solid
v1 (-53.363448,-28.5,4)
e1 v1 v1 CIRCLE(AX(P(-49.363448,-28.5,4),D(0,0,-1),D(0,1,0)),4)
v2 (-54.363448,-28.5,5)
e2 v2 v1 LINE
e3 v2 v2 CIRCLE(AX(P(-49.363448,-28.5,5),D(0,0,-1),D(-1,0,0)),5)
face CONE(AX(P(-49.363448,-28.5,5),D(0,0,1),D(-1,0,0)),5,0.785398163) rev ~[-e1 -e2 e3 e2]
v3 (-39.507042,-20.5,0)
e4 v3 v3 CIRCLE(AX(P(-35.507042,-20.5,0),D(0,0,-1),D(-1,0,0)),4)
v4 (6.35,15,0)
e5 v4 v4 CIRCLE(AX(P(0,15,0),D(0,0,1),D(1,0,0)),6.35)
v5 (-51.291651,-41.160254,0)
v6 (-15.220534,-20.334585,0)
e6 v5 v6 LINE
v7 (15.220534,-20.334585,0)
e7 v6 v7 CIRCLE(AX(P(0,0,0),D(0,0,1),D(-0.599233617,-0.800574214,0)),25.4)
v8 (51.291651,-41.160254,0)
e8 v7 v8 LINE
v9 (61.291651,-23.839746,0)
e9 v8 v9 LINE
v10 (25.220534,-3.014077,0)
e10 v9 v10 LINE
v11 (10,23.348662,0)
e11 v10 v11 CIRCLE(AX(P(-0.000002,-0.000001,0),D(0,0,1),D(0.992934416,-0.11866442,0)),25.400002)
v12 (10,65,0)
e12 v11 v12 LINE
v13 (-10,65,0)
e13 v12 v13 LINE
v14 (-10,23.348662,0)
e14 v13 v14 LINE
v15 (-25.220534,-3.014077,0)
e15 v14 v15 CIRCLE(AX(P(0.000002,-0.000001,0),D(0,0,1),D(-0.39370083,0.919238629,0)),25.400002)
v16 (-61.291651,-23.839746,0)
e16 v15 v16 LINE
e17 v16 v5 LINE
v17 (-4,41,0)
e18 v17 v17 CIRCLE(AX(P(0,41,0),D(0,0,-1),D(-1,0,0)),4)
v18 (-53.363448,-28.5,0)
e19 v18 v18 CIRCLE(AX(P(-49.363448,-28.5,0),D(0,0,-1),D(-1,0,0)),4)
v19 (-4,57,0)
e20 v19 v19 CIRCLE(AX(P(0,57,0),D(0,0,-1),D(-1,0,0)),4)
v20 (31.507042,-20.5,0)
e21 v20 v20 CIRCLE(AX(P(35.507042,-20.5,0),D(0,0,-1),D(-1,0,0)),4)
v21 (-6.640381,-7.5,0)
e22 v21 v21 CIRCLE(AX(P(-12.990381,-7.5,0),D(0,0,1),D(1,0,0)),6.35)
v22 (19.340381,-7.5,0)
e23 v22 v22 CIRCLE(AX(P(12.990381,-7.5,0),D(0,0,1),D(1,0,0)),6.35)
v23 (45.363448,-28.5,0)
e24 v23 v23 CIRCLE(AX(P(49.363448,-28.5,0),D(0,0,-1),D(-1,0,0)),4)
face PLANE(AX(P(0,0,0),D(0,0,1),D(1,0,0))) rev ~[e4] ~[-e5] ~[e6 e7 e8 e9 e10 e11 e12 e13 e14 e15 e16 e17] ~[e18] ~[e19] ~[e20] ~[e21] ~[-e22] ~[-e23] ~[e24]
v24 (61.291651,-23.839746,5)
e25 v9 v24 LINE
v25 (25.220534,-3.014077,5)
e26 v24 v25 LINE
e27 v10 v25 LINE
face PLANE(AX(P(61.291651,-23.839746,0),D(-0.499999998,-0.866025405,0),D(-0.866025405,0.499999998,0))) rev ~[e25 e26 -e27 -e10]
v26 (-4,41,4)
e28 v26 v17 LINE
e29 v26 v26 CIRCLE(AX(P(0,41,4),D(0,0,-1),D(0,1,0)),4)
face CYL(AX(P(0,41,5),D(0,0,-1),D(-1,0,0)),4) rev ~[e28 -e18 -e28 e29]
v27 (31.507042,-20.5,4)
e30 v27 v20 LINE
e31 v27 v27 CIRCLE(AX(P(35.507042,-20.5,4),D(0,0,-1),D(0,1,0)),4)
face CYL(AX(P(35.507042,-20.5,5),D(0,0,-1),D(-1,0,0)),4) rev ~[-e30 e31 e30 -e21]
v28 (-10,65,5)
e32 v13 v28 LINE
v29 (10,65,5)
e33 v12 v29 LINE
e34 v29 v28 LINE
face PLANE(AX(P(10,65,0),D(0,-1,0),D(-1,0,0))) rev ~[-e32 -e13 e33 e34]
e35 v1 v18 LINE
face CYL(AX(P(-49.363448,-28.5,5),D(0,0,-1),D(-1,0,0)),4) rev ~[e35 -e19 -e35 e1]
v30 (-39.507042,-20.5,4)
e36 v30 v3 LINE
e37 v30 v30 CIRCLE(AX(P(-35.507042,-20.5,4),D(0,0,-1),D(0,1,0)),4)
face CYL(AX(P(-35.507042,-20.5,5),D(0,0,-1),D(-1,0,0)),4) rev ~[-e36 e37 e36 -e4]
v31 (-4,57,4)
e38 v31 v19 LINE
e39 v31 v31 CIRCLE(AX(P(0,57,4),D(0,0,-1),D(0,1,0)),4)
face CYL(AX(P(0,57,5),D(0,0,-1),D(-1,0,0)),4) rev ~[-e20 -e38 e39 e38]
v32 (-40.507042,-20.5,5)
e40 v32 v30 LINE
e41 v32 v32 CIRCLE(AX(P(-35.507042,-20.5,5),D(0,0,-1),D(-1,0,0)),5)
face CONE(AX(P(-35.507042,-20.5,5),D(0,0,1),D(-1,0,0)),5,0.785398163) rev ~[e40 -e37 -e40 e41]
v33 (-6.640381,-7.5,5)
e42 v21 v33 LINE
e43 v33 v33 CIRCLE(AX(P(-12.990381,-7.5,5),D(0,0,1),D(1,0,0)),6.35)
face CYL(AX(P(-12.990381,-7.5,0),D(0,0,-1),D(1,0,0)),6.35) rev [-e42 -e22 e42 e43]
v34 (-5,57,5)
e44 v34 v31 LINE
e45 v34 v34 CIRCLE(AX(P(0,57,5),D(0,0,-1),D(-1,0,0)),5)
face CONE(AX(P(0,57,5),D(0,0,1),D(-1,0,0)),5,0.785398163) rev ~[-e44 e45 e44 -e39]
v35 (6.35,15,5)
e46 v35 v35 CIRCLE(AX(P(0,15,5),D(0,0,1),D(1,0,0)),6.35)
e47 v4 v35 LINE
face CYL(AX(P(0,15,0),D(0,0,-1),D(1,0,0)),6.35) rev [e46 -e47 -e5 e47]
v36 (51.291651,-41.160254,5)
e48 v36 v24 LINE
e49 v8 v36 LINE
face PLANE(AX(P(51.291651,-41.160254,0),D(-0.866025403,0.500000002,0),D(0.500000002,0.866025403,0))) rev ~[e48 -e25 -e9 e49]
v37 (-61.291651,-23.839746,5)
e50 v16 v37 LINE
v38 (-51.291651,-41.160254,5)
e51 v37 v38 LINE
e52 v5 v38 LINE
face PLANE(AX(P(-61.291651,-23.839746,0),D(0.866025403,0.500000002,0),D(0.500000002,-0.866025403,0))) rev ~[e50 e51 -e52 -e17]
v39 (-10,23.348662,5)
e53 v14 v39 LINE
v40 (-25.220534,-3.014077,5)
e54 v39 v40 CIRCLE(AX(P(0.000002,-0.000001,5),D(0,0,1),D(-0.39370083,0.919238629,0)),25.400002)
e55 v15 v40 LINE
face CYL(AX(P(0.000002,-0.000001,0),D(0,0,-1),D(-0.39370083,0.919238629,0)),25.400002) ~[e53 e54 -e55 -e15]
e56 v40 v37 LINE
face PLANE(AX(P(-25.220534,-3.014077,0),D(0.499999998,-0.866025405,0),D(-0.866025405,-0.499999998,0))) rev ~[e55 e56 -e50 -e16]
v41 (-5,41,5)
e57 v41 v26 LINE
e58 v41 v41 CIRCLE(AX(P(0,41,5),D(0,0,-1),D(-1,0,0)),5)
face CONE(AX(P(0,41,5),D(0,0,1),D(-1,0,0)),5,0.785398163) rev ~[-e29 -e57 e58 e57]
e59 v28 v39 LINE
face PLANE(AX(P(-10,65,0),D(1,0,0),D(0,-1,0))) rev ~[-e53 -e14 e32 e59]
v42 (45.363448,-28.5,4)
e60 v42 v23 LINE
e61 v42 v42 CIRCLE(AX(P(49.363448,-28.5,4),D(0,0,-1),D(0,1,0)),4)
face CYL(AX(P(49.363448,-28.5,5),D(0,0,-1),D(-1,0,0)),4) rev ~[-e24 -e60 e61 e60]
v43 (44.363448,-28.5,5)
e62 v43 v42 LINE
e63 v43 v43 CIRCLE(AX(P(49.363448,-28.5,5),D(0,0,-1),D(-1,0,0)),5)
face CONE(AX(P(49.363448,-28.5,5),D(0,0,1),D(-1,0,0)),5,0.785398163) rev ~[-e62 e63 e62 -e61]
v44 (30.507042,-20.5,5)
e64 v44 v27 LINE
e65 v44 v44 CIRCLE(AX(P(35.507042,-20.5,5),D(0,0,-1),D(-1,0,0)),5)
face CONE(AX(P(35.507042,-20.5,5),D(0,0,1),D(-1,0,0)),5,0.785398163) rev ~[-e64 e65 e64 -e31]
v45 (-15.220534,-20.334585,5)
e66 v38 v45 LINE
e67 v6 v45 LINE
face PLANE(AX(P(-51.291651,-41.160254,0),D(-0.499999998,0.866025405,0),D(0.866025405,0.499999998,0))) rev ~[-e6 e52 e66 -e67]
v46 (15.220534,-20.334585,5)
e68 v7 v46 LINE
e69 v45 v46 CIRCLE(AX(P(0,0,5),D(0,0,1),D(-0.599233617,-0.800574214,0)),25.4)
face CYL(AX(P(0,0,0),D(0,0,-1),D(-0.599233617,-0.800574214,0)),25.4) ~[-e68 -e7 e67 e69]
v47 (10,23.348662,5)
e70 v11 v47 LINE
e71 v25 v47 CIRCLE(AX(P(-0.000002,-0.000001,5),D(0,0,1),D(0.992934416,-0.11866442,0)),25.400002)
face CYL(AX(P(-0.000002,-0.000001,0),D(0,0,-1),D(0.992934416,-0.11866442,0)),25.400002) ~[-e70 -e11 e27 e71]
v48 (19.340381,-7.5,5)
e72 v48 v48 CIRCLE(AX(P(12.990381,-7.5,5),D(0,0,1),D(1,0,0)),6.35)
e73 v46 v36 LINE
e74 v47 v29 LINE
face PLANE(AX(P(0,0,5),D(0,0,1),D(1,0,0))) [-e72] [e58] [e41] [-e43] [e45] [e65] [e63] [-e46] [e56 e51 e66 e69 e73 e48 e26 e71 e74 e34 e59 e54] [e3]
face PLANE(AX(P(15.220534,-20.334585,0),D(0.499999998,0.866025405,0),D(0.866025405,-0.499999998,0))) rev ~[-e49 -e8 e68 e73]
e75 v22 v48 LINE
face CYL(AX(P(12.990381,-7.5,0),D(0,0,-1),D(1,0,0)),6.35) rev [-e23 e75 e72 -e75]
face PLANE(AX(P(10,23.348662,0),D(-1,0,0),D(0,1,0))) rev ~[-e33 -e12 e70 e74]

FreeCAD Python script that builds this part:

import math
import FreeCAD as App
import Part
import Sketcher
Q = App.Units.Quantity

doc = App.newDocument("Part")
body = doc.addObject("PartDesign::Body", "Body")

sketch1 = doc.addObject("Sketcher::SketchObject", "Sketch")
body.addObject(sketch1)
sketch1.AttachmentSupport = (doc.XY_Plane, [""])
sketch1.MapMode = "FlatFace"
sketch1.addGeometry(Part.LineSegment(App.Vector(-10, 65, 0), App.Vector(-10, 23.348662, 0)), False)
sketch1.addGeometry(Part.ArcOfCircle(Part.Circle(App.Vector(0.000002, -0.000001, 0), App.Vector(0, 0, 1), 25.400002), math.radians(113.184973), math.radians(186.815029)), False)
sketch1.addGeometry(Part.LineSegment(App.Vector(-25.220534, -3.014077, 0), App.Vector(-61.291651, -23.839746, 0)), False)
sketch1.addGeometry(Part.LineSegment(App.Vector(-61.291651, -23.839746, 0), App.Vector(-51.291651, -41.160254, 0)), False)
sketch1.addGeometry(Part.LineSegment(App.Vector(-51.291651, -41.160254, 0), App.Vector(-15.220534, -20.334585, 0)), False)
sketch1.addGeometry(Part.ArcOfCircle(Part.Circle(App.Vector(0, 0, 0), App.Vector(0, 0, 1), 25.4), math.radians(-126.815029), math.radians(-53.184971)), False)
sketch1.addGeometry(Part.LineSegment(App.Vector(15.220534, -20.334585, 0), App.Vector(51.291651, -41.160254, 0)), False)
sketch1.addGeometry(Part.LineSegment(App.Vector(51.291651, -41.160254, 0), App.Vector(61.291651, -23.839746, 0)), False)
sketch1.addGeometry(Part.LineSegment(App.Vector(61.291651, -23.839746, 0), App.Vector(25.220534, -3.014077, 0)), False)
sketch1.addGeometry(Part.ArcOfCircle(Part.Circle(App.Vector(-0.000002, -0.000001, 0), App.Vector(0, 0, 1), 25.400002), math.radians(-6.815029), math.radians(66.815027)), False)
sketch1.addGeometry(Part.LineSegment(App.Vector(10, 23.348662, 0), App.Vector(10, 65, 0)), False)
sketch1.addGeometry(Part.LineSegment(App.Vector(10, 65, 0), App.Vector(-10, 65, 0)), False)
sketch1.addGeometry(Part.Circle(App.Vector(-12.990381, -7.5, 0), App.Vector(0, 0, 1), 6.35), False)
sketch1.addGeometry(Part.Circle(App.Vector(12.990381, -7.5, 0), App.Vector(0, 0, 1), 6.35), False)
sketch1.addGeometry(Part.Circle(App.Vector(0, 15, 0), App.Vector(0, 0, 1), 6.35), False)
sketch1.addConstraint(Sketcher.Constraint("Coincident", 0, 2, 1, 1))
sketch1.addConstraint(Sketcher.Constraint("Coincident", 1, 2, 2, 1))
sketch1.addConstraint(Sketcher.Constraint("Coincident", 2, 2, 3, 1))
sketch1.addConstraint(Sketcher.Constraint("Coincident", 3, 2, 4, 1))
sketch1.addConstraint(Sketcher.Constraint("Coincident", 4, 2, 5, 1))
sketch1.addConstraint(Sketcher.Constraint("Coincident", 5, 2, 6, 1))
sketch1.addConstraint(Sketcher.Constraint("Coincident", 6, 2, 7, 1))
sketch1.addConstraint(Sketcher.Constraint("Coincident", 7, 2, 8, 1))
sketch1.addConstraint(Sketcher.Constraint("Coincident", 8, 2, 9, 1))
sketch1.addConstraint(Sketcher.Constraint("Coincident", 9, 2, 10, 1))
sketch1.addConstraint(Sketcher.Constraint("Coincident", 10, 2, 11, 1))
sketch1.addConstraint(Sketcher.Constraint("Coincident", 11, 2, 0, 1))
sketch1.addConstraint(Sketcher.Constraint("Vertical", 0))
sketch1.addConstraint(Sketcher.Constraint("Vertical", 10))
sketch1.addConstraint(Sketcher.Constraint("Horizontal", 11))
sketch1.addConstraint(Sketcher.Constraint("Coincident", 1, 3, -1, 1))
sketch1.addConstraint(Sketcher.Constraint("Coincident", 5, 3, -1, 1))
sketch1.addConstraint(Sketcher.Constraint("Coincident", 9, 3, -1, 1))
sketch1.addConstraint(Sketcher.Constraint("Equal", 1, 5))
sketch1.addConstraint(Sketcher.Constraint("Equal", 5, 9))
sketch1.addConstraint(Sketcher.Constraint("Equal", 12, 13))
sketch1.addConstraint(Sketcher.Constraint("Equal", 13, 14))
sketch1.addConstraint(Sketcher.Constraint("Symmetric", 12, 3, 13, 3, -2))
sketch1.addConstraint(Sketcher.Constraint("Symmetric", 3, 2, 6, 2, -2))
sketch1.addConstraint(Sketcher.Constraint("Symmetric", 2, 2, 7, 2, -2))
sketch1.addConstraint(Sketcher.Constraint("PointOnObject", 14, 3, -2))
sketch1.addConstraint(Sketcher.Constraint("Perpendicular", 2, 3))
sketch1.addConstraint(Sketcher.Constraint("Perpendicular", 3, 4))
sketch1.addConstraint(Sketcher.Constraint("Perpendicular", 6, 7))
sketch1.addConstraint(Sketcher.Constraint("Perpendicular", 7, 8))
sketch1.addConstraint(Sketcher.Constraint("Horizontal", 0, 2, 9, 2))
sketch1.addConstraint(Sketcher.Constraint("Equal", 2, 4))
sketch1.addConstraint(Sketcher.Constraint("Diameter", 12, Q("12.7 mm")))
sketch1.addConstraint(Sketcher.Constraint("Radius", 1, Q("25.400002 mm")))
sketch1.addConstraint(Sketcher.Constraint("DistanceX", 11, 2, 11, 1, Q("20 mm")))
sketch1.addConstraint(Sketcher.Constraint("Angle", 2, Q("-150 deg")))
sketch1.addConstraint(Sketcher.Constraint("Distance", 3, Q("20 mm")))
sketch1.addConstraint(Sketcher.Constraint("DistanceY", -1, 1, 14, 3, Q("15 mm")))
sketch1.addConstraint(Sketcher.Constraint("DistanceY", -1, 1, 10, 2, Q("65 mm")))
sketch1.addConstraint(Sketcher.Constraint("DistanceY", 12, 3, -1, 1, Q("7.5 mm")))
sketch1.addConstraint(Sketcher.Constraint("Distance", 2, Q("41.651338 mm")))
sketch1.addConstraint(Sketcher.Constraint("DistanceX", 12, 3, -1, 1, Q("12.990381 mm")))
pad1 = doc.addObject("PartDesign::Pad", "Pad")
body.addObject(pad1)
pad1.Profile = sketch1
pad1.Length = 5

sketch2 = doc.addObject("Sketcher::SketchObject", "Sketch001")
body.addObject(sketch2)
sketch2.AttachmentSupport = (doc.XY_Plane, [""])
sketch2.MapMode = "FlatFace"
sketch2.AttachmentOffset = App.Placement(App.Vector(0, 0, 5), App.Rotation())
sketch2.addGeometry(Part.Circle(App.Vector(0, 57, 0), App.Vector(0, 0, 1), 4), False)
sketch2.addGeometry(Part.Circle(App.Vector(0, 41, 0), App.Vector(0, 0, 1), 4), False)
sketch2.addGeometry(Part.Circle(App.Vector(35.507042, -20.5, 0), App.Vector(0, 0, 1), 4), False)
sketch2.addGeometry(Part.Circle(App.Vector(49.363448, -28.5, 0), App.Vector(0, 0, 1), 4), False)
sketch2.addGeometry(Part.Circle(App.Vector(-35.507042, -20.5, 0), App.Vector(0, 0, 1), 4), False)
sketch2.addGeometry(Part.Circle(App.Vector(-49.363448, -28.5, 0), App.Vector(0, 0, 1), 4), False)
sketch2.addConstraint(Sketcher.Constraint("Equal", 0, 1))
sketch2.addConstraint(Sketcher.Constraint("Equal", 1, 2))
sketch2.addConstraint(Sketcher.Constraint("Equal", 2, 3))
sketch2.addConstraint(Sketcher.Constraint("Equal", 3, 4))
sketch2.addConstraint(Sketcher.Constraint("Equal", 4, 5))
sketch2.addConstraint(Sketcher.Constraint("Symmetric", 2, 3, 4, 3, -2))
sketch2.addConstraint(Sketcher.Constraint("Symmetric", 3, 3, 5, 3, -2))
sketch2.addConstraint(Sketcher.Constraint("PointOnObject", 0, 3, -2))
sketch2.addConstraint(Sketcher.Constraint("PointOnObject", 1, 3, -2))
sketch2.addConstraint(Sketcher.Constraint("Diameter", 0, Q("8 mm")))
sketch2.addConstraint(Sketcher.Constraint("DistanceY", -1, 1, 0, 3, Q("57 mm")))
sketch2.addConstraint(Sketcher.Constraint("DistanceY", -1, 1, 1, 3, Q("41 mm")))
sketch2.addConstraint(Sketcher.Constraint("DistanceY", 3, 3, 2, 3, Q("8 mm")))
sketch2.addConstraint(Sketcher.Constraint("DistanceY", 2, 3, -1, 1, Q("20.5 mm")))
sketch2.addConstraint(Sketcher.Constraint("DistanceX", -1, 1, 2, 3, Q("35.507042 mm")))
sketch2.addConstraint(Sketcher.Constraint("DistanceX", 4, 3, 3, 3, Q("84.87049 mm")))
doc.recompute()
hole = doc.addObject("PartDesign::Hole", "Hole")
body.addObject(hole)
hole.Profile = sketch2
hole.ThreadType = "None"
hole.Diameter = 8
hole.DepthType = "ThroughAll"
hole.HoleCutType = "Countersink"
hole.HoleCutDiameter = 10
hole.HoleCutCountersinkAngle = 90

doc.recompute()
